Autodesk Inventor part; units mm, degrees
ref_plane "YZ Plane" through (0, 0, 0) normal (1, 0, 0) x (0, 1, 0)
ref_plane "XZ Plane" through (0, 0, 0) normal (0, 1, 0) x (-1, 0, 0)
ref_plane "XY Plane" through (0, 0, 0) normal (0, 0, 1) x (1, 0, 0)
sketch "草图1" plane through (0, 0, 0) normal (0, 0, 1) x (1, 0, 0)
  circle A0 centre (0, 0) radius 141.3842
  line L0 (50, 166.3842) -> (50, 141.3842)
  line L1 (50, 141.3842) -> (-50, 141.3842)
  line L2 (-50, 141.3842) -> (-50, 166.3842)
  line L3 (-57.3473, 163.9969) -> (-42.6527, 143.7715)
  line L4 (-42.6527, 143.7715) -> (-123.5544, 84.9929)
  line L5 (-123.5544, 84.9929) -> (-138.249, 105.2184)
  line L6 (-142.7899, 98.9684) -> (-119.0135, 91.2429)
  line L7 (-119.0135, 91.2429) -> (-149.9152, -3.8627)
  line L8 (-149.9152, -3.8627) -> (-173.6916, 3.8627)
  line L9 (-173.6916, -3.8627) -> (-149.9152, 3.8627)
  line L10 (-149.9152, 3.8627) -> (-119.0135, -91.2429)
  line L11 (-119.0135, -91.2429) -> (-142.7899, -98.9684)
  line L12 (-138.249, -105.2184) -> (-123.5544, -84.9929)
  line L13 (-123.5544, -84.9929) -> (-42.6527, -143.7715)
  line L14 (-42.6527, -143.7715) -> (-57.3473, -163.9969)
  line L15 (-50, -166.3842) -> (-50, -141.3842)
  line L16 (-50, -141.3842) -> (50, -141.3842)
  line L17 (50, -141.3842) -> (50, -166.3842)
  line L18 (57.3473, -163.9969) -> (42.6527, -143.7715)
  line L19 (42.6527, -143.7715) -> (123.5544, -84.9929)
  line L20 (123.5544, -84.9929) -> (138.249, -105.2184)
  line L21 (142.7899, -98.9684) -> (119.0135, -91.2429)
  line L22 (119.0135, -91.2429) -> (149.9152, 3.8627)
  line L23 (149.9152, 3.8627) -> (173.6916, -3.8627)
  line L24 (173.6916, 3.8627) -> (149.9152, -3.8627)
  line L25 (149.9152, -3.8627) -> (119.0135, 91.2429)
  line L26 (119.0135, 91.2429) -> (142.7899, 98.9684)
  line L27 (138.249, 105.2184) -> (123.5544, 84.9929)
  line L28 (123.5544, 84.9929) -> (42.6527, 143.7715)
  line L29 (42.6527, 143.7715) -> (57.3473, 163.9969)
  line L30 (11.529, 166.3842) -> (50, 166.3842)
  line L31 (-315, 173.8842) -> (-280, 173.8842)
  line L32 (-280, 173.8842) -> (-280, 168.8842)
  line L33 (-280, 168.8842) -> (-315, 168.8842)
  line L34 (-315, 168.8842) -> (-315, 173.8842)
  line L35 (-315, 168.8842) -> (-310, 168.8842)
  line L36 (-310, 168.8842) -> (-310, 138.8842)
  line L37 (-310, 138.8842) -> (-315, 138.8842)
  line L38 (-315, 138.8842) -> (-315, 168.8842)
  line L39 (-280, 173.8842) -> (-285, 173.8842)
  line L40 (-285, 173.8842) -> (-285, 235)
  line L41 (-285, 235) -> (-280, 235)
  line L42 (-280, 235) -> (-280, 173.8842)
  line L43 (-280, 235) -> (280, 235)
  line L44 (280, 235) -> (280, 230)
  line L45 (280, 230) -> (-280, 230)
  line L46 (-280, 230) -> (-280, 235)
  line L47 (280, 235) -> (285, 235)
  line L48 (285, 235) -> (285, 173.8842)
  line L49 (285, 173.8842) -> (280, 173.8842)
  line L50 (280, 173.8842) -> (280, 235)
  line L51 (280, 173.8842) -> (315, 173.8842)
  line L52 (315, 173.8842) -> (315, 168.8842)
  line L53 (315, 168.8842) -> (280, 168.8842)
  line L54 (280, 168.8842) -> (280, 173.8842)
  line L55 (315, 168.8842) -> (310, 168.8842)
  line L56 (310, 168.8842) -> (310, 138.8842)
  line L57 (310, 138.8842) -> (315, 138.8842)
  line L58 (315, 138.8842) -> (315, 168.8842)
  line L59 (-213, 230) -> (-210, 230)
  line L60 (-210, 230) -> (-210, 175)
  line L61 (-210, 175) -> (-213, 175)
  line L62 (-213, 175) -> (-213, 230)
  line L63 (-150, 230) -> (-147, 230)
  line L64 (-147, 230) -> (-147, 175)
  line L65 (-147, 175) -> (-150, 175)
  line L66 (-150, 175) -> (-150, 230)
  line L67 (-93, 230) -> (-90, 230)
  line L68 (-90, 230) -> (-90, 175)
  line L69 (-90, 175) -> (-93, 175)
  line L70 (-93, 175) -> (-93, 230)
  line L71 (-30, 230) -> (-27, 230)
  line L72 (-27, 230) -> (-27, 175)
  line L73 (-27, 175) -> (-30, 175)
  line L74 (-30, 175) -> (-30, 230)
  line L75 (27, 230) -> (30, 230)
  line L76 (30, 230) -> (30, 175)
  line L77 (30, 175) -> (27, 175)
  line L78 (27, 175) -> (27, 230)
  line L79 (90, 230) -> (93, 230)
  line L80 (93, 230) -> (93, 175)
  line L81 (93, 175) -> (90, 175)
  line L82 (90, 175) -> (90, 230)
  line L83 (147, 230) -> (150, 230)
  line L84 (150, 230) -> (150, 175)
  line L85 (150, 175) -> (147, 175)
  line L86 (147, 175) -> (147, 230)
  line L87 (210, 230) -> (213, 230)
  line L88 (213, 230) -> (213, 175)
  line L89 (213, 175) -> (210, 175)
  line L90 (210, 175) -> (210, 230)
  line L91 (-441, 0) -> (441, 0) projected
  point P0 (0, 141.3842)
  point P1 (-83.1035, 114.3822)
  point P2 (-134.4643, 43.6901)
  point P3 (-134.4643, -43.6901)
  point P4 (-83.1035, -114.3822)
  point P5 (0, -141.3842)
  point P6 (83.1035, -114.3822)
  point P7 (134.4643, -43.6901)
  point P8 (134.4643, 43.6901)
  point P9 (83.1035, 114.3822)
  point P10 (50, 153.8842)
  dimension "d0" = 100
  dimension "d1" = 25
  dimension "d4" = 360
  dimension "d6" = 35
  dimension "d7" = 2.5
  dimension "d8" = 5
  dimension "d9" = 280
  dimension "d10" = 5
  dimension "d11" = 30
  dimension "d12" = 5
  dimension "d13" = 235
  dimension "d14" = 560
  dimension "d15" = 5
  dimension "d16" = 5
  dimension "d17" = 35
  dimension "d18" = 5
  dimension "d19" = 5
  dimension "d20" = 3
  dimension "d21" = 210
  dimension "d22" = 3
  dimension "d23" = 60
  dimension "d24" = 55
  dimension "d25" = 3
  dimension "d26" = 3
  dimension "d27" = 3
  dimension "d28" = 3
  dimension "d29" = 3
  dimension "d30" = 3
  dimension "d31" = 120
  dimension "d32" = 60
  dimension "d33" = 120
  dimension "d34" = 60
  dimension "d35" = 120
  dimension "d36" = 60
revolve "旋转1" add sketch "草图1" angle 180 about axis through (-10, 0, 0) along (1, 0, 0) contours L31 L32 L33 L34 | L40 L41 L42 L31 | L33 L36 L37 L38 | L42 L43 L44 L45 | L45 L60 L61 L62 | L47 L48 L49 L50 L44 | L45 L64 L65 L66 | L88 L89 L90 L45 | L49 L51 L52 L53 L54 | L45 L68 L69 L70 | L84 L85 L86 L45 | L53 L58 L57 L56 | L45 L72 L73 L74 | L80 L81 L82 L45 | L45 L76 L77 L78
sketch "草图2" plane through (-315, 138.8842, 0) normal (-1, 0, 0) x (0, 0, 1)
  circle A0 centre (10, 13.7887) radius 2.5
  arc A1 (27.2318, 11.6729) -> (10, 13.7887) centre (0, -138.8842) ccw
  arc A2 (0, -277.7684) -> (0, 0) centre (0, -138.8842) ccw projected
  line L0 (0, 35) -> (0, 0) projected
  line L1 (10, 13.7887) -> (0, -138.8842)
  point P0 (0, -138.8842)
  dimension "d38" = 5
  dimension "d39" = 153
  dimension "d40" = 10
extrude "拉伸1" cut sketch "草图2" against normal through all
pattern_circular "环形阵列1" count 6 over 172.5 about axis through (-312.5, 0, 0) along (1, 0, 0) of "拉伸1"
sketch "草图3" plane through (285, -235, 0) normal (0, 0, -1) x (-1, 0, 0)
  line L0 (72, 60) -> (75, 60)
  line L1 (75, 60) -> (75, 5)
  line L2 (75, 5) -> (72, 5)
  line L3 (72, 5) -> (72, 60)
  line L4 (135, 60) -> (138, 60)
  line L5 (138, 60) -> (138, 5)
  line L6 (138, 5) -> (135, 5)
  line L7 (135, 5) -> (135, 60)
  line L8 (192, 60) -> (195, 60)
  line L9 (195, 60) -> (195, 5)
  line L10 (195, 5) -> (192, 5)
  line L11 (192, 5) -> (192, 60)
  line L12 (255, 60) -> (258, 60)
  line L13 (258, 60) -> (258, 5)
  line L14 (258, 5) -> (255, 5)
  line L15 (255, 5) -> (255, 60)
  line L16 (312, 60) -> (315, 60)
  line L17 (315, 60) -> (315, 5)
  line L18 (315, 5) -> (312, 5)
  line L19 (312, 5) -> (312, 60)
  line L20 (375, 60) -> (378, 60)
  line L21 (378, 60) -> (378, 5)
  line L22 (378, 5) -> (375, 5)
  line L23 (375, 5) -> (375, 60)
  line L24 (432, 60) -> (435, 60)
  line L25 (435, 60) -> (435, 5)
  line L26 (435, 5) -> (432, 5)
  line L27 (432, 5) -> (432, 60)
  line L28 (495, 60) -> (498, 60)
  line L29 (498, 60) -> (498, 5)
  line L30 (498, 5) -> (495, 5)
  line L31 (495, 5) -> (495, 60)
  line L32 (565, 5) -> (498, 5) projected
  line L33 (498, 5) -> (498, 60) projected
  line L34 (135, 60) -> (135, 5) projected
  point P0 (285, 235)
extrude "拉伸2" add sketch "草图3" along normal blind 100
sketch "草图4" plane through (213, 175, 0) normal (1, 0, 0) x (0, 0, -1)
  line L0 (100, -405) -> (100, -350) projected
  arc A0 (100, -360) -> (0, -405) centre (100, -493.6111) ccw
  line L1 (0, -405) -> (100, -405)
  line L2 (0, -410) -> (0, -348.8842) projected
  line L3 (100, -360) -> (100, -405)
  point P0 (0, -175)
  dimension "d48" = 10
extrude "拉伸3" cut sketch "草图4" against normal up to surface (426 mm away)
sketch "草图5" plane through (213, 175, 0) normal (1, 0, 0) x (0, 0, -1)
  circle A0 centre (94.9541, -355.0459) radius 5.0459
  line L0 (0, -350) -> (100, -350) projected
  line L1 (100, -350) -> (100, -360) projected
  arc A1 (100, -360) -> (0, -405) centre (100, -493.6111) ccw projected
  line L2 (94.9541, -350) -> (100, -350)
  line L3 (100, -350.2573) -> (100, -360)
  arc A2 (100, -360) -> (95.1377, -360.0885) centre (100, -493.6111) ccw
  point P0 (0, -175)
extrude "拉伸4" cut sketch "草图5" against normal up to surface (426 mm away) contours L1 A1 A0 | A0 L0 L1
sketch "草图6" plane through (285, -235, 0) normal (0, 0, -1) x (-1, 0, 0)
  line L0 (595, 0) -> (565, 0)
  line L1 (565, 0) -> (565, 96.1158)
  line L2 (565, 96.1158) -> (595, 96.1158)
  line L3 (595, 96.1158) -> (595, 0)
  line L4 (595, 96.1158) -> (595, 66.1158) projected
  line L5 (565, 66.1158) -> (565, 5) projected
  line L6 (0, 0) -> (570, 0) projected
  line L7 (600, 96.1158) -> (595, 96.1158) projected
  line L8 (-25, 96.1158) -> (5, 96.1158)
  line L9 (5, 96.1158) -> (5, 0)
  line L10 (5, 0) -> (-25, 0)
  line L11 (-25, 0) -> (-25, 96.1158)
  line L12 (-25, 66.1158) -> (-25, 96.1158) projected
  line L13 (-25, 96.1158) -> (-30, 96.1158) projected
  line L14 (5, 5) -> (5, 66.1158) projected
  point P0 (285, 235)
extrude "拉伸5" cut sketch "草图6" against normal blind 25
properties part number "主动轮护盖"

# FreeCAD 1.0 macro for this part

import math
import FreeCAD as App
import Part
import Sketcher
Q = App.Units.Quantity

doc = App.newDocument("Part")
params = doc.addObject("Spreadsheet::Sheet", "Params")
for row, (alias, value) in enumerate([
    ("sketch1_width", "30 mm"),
    ("sketch1_width2", "5 mm"),
    ("sketch1_width3", "3 mm"),
    ("sketch1_width4", "60 mm"),
    ("sketch1_height", "35 mm"),
    ("revolution_angle", "180 deg"),
    ("sketch2_diameter", "5 mm"),
    ("sketch3_width", "3 mm"),
    ("sketch3_height", "55 mm"),
    ("pad1_length", "100 mm"),
    ("sketch4_width", "45 mm"),
    ("sketch4_height", "100 mm"),
    ("pocket2_length", "426 mm"),
    ("pocket3_length", "426 mm"),
    ("sketch6_width", "30 mm"),
    ("pocket4_length", "25 mm"),
], start=1):
    params.set(f"A{row}", alias)
    params.set(f"B{row}", "=" + value)
    params.setAlias(f"B{row}", alias)

body = doc.addObject("PartDesign::Body", "Body")

# Sketch on XY plane
sketch1 = body.newObject("Sketcher::SketchObject", "Sketch")
sketch1.AttachmentSupport = (doc.getObject("XY_Plane"), [""])
sketch1.MapMode = "FlatFace"
sketch1.addGeometry(Part.LineSegment(App.Vector(-285, 173.8842, 0), App.Vector(-315, 173.8842, 0)), False)
sketch1.addGeometry(Part.LineSegment(App.Vector(-315, 173.8842, 0), App.Vector(-315, 138.8842, 0)), False)
sketch1.addGeometry(Part.LineSegment(App.Vector(-315, 138.8842, 0), App.Vector(-310, 138.8842, 0)), False)
sketch1.addGeometry(Part.LineSegment(App.Vector(-310, 138.8842, 0), App.Vector(-310, 168.8842, 0)), False)
sketch1.addGeometry(Part.LineSegment(App.Vector(-310, 168.8842, 0), App.Vector(-280, 168.8842, 0)), False)
sketch1.addGeometry(Part.LineSegment(App.Vector(-280, 168.8842, 0), App.Vector(-280, 230, 0)), False)
sketch1.addGeometry(Part.LineSegment(App.Vector(-280, 230, 0), App.Vector(-213, 230, 0)), False)
sketch1.addGeometry(Part.LineSegment(App.Vector(-213, 230, 0), App.Vector(-213, 175, 0)), False)
sketch1.addGeometry(Part.LineSegment(App.Vector(-213, 175, 0), App.Vector(-210, 175, 0)), False)
sketch1.addGeometry(Part.LineSegment(App.Vector(-210, 175, 0), App.Vector(-210, 230, 0)), False)
sketch1.addGeometry(Part.LineSegment(App.Vector(-210, 230, 0), App.Vector(-150, 230, 0)), False)
sketch1.addGeometry(Part.LineSegment(App.Vector(-150, 230, 0), App.Vector(-150, 175, 0)), False)
sketch1.addGeometry(Part.LineSegment(App.Vector(-150, 175, 0), App.Vector(-147, 175, 0)), False)
sketch1.addGeometry(Part.LineSegment(App.Vector(-147, 175, 0), App.Vector(-147, 230, 0)), False)
sketch1.addGeometry(Part.LineSegment(App.Vector(-147, 230, 0), App.Vector(-93, 230, 0)), False)
sketch1.addGeometry(Part.LineSegment(App.Vector(-93, 230, 0), App.Vector(-93, 175, 0)), False)
sketch1.addGeometry(Part.LineSegment(App.Vector(-93, 175, 0), App.Vector(-90, 175, 0)), False)
sketch1.addGeometry(Part.LineSegment(App.Vector(-90, 175, 0), App.Vector(-90, 230, 0)), False)
sketch1.addGeometry(Part.LineSegment(App.Vector(-90, 230, 0), App.Vector(-30, 230, 0)), False)
sketch1.addGeometry(Part.LineSegment(App.Vector(-30, 230, 0), App.Vector(-30, 175, 0)), False)
sketch1.addGeometry(Part.LineSegment(App.Vector(-30, 175, 0), App.Vector(-27, 175, 0)), False)
sketch1.addGeometry(Part.LineSegment(App.Vector(-27, 175, 0), App.Vector(-27, 230, 0)), False)
sketch1.addGeometry(Part.LineSegment(App.Vector(-27, 230, 0), App.Vector(27, 230, 0)), False)
sketch1.addGeometry(Part.LineSegment(App.Vector(27, 230, 0), App.Vector(27, 175, 0)), False)
sketch1.addGeometry(Part.LineSegment(App.Vector(27, 175, 0), App.Vector(30, 175, 0)), False)
sketch1.addGeometry(Part.LineSegment(App.Vector(30, 175, 0), App.Vector(30, 230, 0)), False)
sketch1.addGeometry(Part.LineSegment(App.Vector(30, 230, 0), App.Vector(90, 230, 0)), False)
sketch1.addGeometry(Part.LineSegment(App.Vector(90, 230, 0), App.Vector(90, 175, 0)), False)
sketch1.addGeometry(Part.LineSegment(App.Vector(90, 175, 0), App.Vector(93, 175, 0)), False)
sketch1.addGeometry(Part.LineSegment(App.Vector(93, 175, 0), App.Vector(93, 230, 0)), False)
sketch1.addGeometry(Part.LineSegment(App.Vector(93, 230, 0), App.Vector(147, 230, 0)), False)
sketch1.addGeometry(Part.LineSegment(App.Vector(147, 230, 0), App.Vector(147, 175, 0)), False)
sketch1.addGeometry(Part.LineSegment(App.Vector(147, 175, 0), App.Vector(150, 175, 0)), False)
sketch1.addGeometry(Part.LineSegment(App.Vector(150, 175, 0), App.Vector(150, 230, 0)), False)
sketch1.addGeometry(Part.LineSegment(App.Vector(150, 230, 0), App.Vector(210, 230, 0)), False)
sketch1.addGeometry(Part.LineSegment(App.Vector(210, 230, 0), App.Vector(210, 175, 0)), False)
sketch1.addGeometry(Part.LineSegment(App.Vector(210, 175, 0), App.Vector(213, 175, 0)), False)
sketch1.addGeometry(Part.LineSegment(App.Vector(213, 175, 0), App.Vector(213, 230, 0)), False)
sketch1.addGeometry(Part.LineSegment(App.Vector(213, 230, 0), App.Vector(280, 230, 0)), False)
sketch1.addGeometry(Part.LineSegment(App.Vector(280, 230, 0), App.Vector(280, 168.8842, 0)), False)
sketch1.addGeometry(Part.LineSegment(App.Vector(280, 168.8842, 0), App.Vector(310, 168.8842, 0)), False)
sketch1.addGeometry(Part.LineSegment(App.Vector(310, 168.8842, 0), App.Vector(310, 138.8842, 0)), False)
sketch1.addGeometry(Part.LineSegment(App.Vector(310, 138.8842, 0), App.Vector(315, 138.8842, 0)), False)
sketch1.addGeometry(Part.LineSegment(App.Vector(315, 138.8842, 0), App.Vector(315, 173.8842, 0)), False)
sketch1.addGeometry(Part.LineSegment(App.Vector(315, 173.8842, 0), App.Vector(285, 173.8842, 0)), False)
sketch1.addGeometry(Part.LineSegment(App.Vector(285, 173.8842, 0), App.Vector(285, 235, 0)), False)
sketch1.addGeometry(Part.LineSegment(App.Vector(285, 235, 0), App.Vector(-285, 235, 0)), False)
sketch1.addGeometry(Part.LineSegment(App.Vector(-285, 235, 0), App.Vector(-285, 173.8842, 0)), False)
sketch1.addConstraint(Sketcher.Constraint("Coincident", 0, 2, 1, 1))
sketch1.addConstraint(Sketcher.Constraint("Coincident", 1, 2, 2, 1))
sketch1.addConstraint(Sketcher.Constraint("Coincident", 2, 2, 3, 1))
sketch1.addConstraint(Sketcher.Constraint("Coincident", 3, 2, 4, 1))
sketch1.addConstraint(Sketcher.Constraint("Coincident", 4, 2, 5, 1))
sketch1.addConstraint(Sketcher.Constraint("Coincident", 5, 2, 6, 1))
sketch1.addConstraint(Sketcher.Constraint("Coincident", 6, 2, 7, 1))
sketch1.addConstraint(Sketcher.Constraint("Coincident", 7, 2, 8, 1))
sketch1.addConstraint(Sketcher.Constraint("Coincident", 8, 2, 9, 1))
sketch1.addConstraint(Sketcher.Constraint("Coincident", 9, 2, 10, 1))
sketch1.addConstraint(Sketcher.Constraint("Coincident", 10, 2, 11, 1))
sketch1.addConstraint(Sketcher.Constraint("Coincident", 11, 2, 12, 1))
sketch1.addConstraint(Sketcher.Constraint("Coincident", 12, 2, 13, 1))
sketch1.addConstraint(Sketcher.Constraint("Coincident", 13, 2, 14, 1))
sketch1.addConstraint(Sketcher.Constraint("Coincident", 14, 2, 15, 1))
sketch1.addConstraint(Sketcher.Constraint("Coincident", 15, 2, 16, 1))
sketch1.addConstraint(Sketcher.Constraint("Coincident", 16, 2, 17, 1))
sketch1.addConstraint(Sketcher.Constraint("Coincident", 17, 2, 18, 1))
sketch1.addConstraint(Sketcher.Constraint("Coincident", 18, 2, 19, 1))
sketch1.addConstraint(Sketcher.Constraint("Coincident", 19, 2, 20, 1))
sketch1.addConstraint(Sketcher.Constraint("Coincident", 20, 2, 21, 1))
sketch1.addConstraint(Sketcher.Constraint("Coincident", 21, 2, 22, 1))
sketch1.addConstraint(Sketcher.Constraint("Coincident", 22, 2, 23, 1))
sketch1.addConstraint(Sketcher.Constraint("Coincident", 23, 2, 24, 1))
sketch1.addConstraint(Sketcher.Constraint("Coincident", 24, 2, 25, 1))
sketch1.addConstraint(Sketcher.Constraint("Coincident", 25, 2, 26, 1))
sketch1.addConstraint(Sketcher.Constraint("Coincident", 26, 2, 27, 1))
sketch1.addConstraint(Sketcher.Constraint("Coincident", 27, 2, 28, 1))
sketch1.addConstraint(Sketcher.Constraint("Coincident", 28, 2, 29, 1))
sketch1.addConstraint(Sketcher.Constraint("Coincident", 29, 2, 30, 1))
sketch1.addConstraint(Sketcher.Constraint("Coincident", 30, 2, 31, 1))
sketch1.addConstraint(Sketcher.Constraint("Coincident", 31, 2, 32, 1))
sketch1.addConstraint(Sketcher.Constraint("Coincident", 32, 2, 33, 1))
sketch1.addConstraint(Sketcher.Constraint("Coincident", 33, 2, 34, 1))
sketch1.addConstraint(Sketcher.Constraint("Coincident", 34, 2, 35, 1))
sketch1.addConstraint(Sketcher.Constraint("Coincident", 35, 2, 36, 1))
sketch1.addConstraint(Sketcher.Constraint("Coincident", 36, 2, 37, 1))
sketch1.addConstraint(Sketcher.Constraint("Coincident", 37, 2, 38, 1))
sketch1.addConstraint(Sketcher.Constraint("Coincident", 38, 2, 39, 1))
sketch1.addConstraint(Sketcher.Constraint("Coincident", 39, 2, 40, 1))
sketch1.addConstraint(Sketcher.Constraint("Coincident", 40, 2, 41, 1))
sketch1.addConstraint(Sketcher.Constraint("Coincident", 41, 2, 42, 1))
sketch1.addConstraint(Sketcher.Constraint("Coincident", 42, 2, 43, 1))
sketch1.addConstraint(Sketcher.Constraint("Coincident", 43, 2, 44, 1))
sketch1.addConstraint(Sketcher.Constraint("Coincident", 44, 2, 45, 1))
sketch1.addConstraint(Sketcher.Constraint("Coincident", 45, 2, 46, 1))
sketch1.addConstraint(Sketcher.Constraint("Coincident", 46, 2, 47, 1))
sketch1.addConstraint(Sketcher.Constraint("Coincident", 47, 2, 0, 1))
sketch1.addConstraint(Sketcher.Constraint("Horizontal", 0))
sketch1.addConstraint(Sketcher.Constraint("Vertical", 1))
sketch1.addConstraint(Sketcher.Constraint("Horizontal", 2))
sketch1.addConstraint(Sketcher.Constraint("Vertical", 3))
sketch1.addConstraint(Sketcher.Constraint("Horizontal", 4))
sketch1.addConstraint(Sketcher.Constraint("Vertical", 5))
sketch1.addConstraint(Sketcher.Constraint("Horizontal", 6))
sketch1.addConstraint(Sketcher.Constraint("Vertical", 7))
sketch1.addConstraint(Sketcher.Constraint("Horizontal", 8))
sketch1.addConstraint(Sketcher.Constraint("Vertical", 9))
sketch1.addConstraint(Sketcher.Constraint("Horizontal", 10))
sketch1.addConstraint(Sketcher.Constraint("Vertical", 11))
sketch1.addConstraint(Sketcher.Constraint("Horizontal", 12))
sketch1.addConstraint(Sketcher.Constraint("Vertical", 13))
sketch1.addConstraint(Sketcher.Constraint("Horizontal", 14))
sketch1.addConstraint(Sketcher.Constraint("Vertical", 15))
sketch1.addConstraint(Sketcher.Constraint("Horizontal", 16))
sketch1.addConstraint(Sketcher.Constraint("Vertical", 17))
sketch1.addConstraint(Sketcher.Constraint("Horizontal", 18))
sketch1.addConstraint(Sketcher.Constraint("Vertical", 19))
sketch1.addConstraint(Sketcher.Constraint("Horizontal", 20))
sketch1.addConstraint(Sketcher.Constraint("Vertical", 21))
sketch1.addConstraint(Sketcher.Constraint("Horizontal", 22))
sketch1.addConstraint(Sketcher.Constraint("Vertical", 23))
sketch1.addConstraint(Sketcher.Constraint("Horizontal", 24))
sketch1.addConstraint(Sketcher.Constraint("Vertical", 25))
sketch1.addConstraint(Sketcher.Constraint("Horizontal", 26))
sketch1.addConstraint(Sketcher.Constraint("Vertical", 27))
sketch1.addConstraint(Sketcher.Constraint("Horizontal", 28))
sketch1.addConstraint(Sketcher.Constraint("Vertical", 29))
sketch1.addConstraint(Sketcher.Constraint("Horizontal", 30))
sketch1.addConstraint(Sketcher.Constraint("Vertical", 31))
sketch1.addConstraint(Sketcher.Constraint("Horizontal", 32))
sketch1.addConstraint(Sketcher.Constraint("Vertical", 33))
sketch1.addConstraint(Sketcher.Constraint("Horizontal", 34))
sketch1.addConstraint(Sketcher.Constraint("Vertical", 35))
sketch1.addConstraint(Sketcher.Constraint("Horizontal", 36))
sketch1.addConstraint(Sketcher.Constraint("Vertical", 37))
sketch1.addConstraint(Sketcher.Constraint("Horizontal", 38))
sketch1.addConstraint(Sketcher.Constraint("Vertical", 39))
sketch1.addConstraint(Sketcher.Constraint("Horizontal", 40))
sketch1.addConstraint(Sketcher.Constraint("Vertical", 41))
sketch1.addConstraint(Sketcher.Constraint("Horizontal", 42))
sketch1.addConstraint(Sketcher.Constraint("Vertical", 43))
sketch1.addConstraint(Sketcher.Constraint("Horizontal", 44))
sketch1.addConstraint(Sketcher.Constraint("Vertical", 45))
sketch1.addConstraint(Sketcher.Constraint("Horizontal", 46))
sketch1.addConstraint(Sketcher.Constraint("Vertical", 47))
sketch1.addConstraint(Sketcher.Constraint("Symmetric", 20, 2, 23, 2, -2))
sketch1.addConstraint(Sketcher.Constraint("Symmetric", 18, 2, 25, 2, -2))
sketch1.addConstraint(Sketcher.Constraint("Symmetric", 16, 2, 27, 2, -2))
sketch1.addConstraint(Sketcher.Constraint("Symmetric", 14, 2, 29, 2, -2))
sketch1.addConstraint(Sketcher.Constraint("Symmetric", 12, 2, 31, 2, -2))
sketch1.addConstraint(Sketcher.Constraint("Symmetric", 10, 2, 33, 2, -2))
sketch1.addConstraint(Sketcher.Constraint("Symmetric", 8, 2, 35, 2, -2))
sketch1.addConstraint(Sketcher.Constraint("Symmetric", 6, 2, 37, 2, -2))
sketch1.addConstraint(Sketcher.Constraint("Symmetric", 4, 2, 39, 2, -2))
sketch1.addConstraint(Sketcher.Constraint("Symmetric", 2, 2, 41, 2, -2))
sketch1.addConstraint(Sketcher.Constraint("Symmetric", 0, 2, 43, 2, -2))
sketch1.addConstraint(Sketcher.Constraint("Horizontal", 6, 2, 9, 2))
sketch1.addConstraint(Sketcher.Constraint("Horizontal", 8, 2, 11, 2))
sketch1.addConstraint(Sketcher.Constraint("Horizontal", 10, 2, 13, 2))
sketch1.addConstraint(Sketcher.Constraint("Horizontal", 12, 2, 15, 2))
sketch1.addConstraint(Sketcher.Constraint("Horizontal", 14, 2, 17, 2))
sketch1.addConstraint(Sketcher.Constraint("Horizontal", 16, 2, 19, 2))
sketch1.addConstraint(Sketcher.Constraint("Horizontal", 18, 2, 21, 2))
sketch1.addConstraint(Sketcher.Constraint("Equal", 0, 4))
sketch1.addConstraint(Sketcher.Constraint("Equal", 8, 12))
sketch1.addConstraint(Sketcher.Constraint("Equal", 12, 16))
sketch1.addConstraint(Sketcher.Constraint("Equal", 10, 18))
sketch1.addConstraint(Sketcher.Constraint("Equal", 16, 20))
sketch1.addConstraint(Sketcher.Constraint("Equal", 14, 22))
sketch1.addConstraint(Sketcher.Constraint("Equal", 40, 44))
sketch1.addConstraint(Sketcher.Constraint("Equal", 44, 3))
sketch1.addConstraint(Sketcher.Constraint("Equal", 39, 45))
sketch1.addConstraint(Sketcher.Constraint("DistanceX", 0, 2, 0, 1, Q("30 mm")))
sketch1.addConstraint(Sketcher.Constraint("DistanceX", 2, 1, 2, 2, Q("5 mm")))
sketch1.addConstraint(Sketcher.Constraint("DistanceX", 8, 1, 8, 2, Q("3 mm")))
sketch1.addConstraint(Sketcher.Constraint("DistanceX", 10, 1, 10, 2, Q("60 mm")))
sketch1.addConstraint(Sketcher.Constraint("DistanceY", 1, 2, 1, 1, Q("35 mm")))
sketch1.addConstraint(Sketcher.Constraint("DistanceY", 7, 2, 7, 1, Q("55 mm")))
sketch1.addConstraint(Sketcher.Constraint("DistanceX", 4, 2, -1, 1, Q("280 mm")))
sketch1.addConstraint(Sketcher.Constraint("DistanceX", 8, 2, -1, 1, Q("210 mm")))
sketch1.addConstraint(Sketcher.Constraint("DistanceY", -1, 1, 45, 2, Q("235 mm")))
sketch1.addConstraint(Sketcher.Constraint("DistanceY", 5, 1, 5, 2, Q("61.1158 mm")))
sketch1.setExpression("Constraints[123]", "Params.sketch1_width")
sketch1.setExpression("Constraints[124]", "Params.sketch1_width2")
sketch1.setExpression("Constraints[125]", "Params.sketch1_width3")
sketch1.setExpression("Constraints[126]", "Params.sketch1_width4")
sketch1.setExpression("Constraints[127]", "Params.sketch1_height")
revolution = body.newObject("PartDesign::Revolution", "Revolution")
revolution.Profile = sketch1
revolution.ReferenceAxis = (sketch1, ["H_Axis"])
revolution.setExpression("Angle", "Params.revolution_angle")

# Sketch on YZ plane
sketch2 = body.newObject("Sketcher::SketchObject", "Sketch001")
sketch2.AttachmentSupport = (doc.getObject("YZ_Plane"), [""])
sketch2.MapMode = "FlatFace"
sketch2.AttachmentOffset = App.Placement(App.Vector(0, 0, -315), App.Rotation())
sketch2.addGeometry(Part.Circle(App.Vector(152.6729, 10, 0), App.Vector(0, 0, 1), 2.5), False)
sketch2.addConstraint(Sketcher.Constraint("Diameter", 0, Q("5 mm")))
sketch2.addConstraint(Sketcher.Constraint("DistanceY", -1, 1, 0, 3, Q("10 mm")))
sketch2.addConstraint(Sketcher.Constraint("DistanceX", -1, 1, 0, 3, Q("152.673 mm")))
sketch2.setExpression("Constraints[0]", "Params.sketch2_diameter")
pocket1 = body.newObject("PartDesign::Pocket", "Pocket")
pocket1.Profile = sketch2
pocket1.Type = "ThroughAll"
pocket1.Reversed = True
doc.recompute()

polarpattern = body.newObject("PartDesign::PolarPattern", "PolarPattern")
polarpattern.Originals = [pocket1]
polarpattern.Axis = (doc.getObject("X_Axis"), [""])
polarpattern.Angle = 172.5
polarpattern.Occurrences = 6
body.Tip = polarpattern

# Sketch on XY plane
sketch3 = body.newObject("Sketcher::SketchObject", "Sketch002")
sketch3.AttachmentSupport = (doc.getObject("XY_Plane"), [""])
sketch3.MapMode = "FlatFace"
sketch3.addGeometry(Part.LineSegment(App.Vector(210, -175, 0), App.Vector(213, -175, 0)), False)
sketch3.addGeometry(Part.LineSegment(App.Vector(213, -175, 0), App.Vector(213, -230, 0)), False)
sketch3.addGeometry(Part.LineSegment(App.Vector(213, -230, 0), App.Vector(210, -230, 0)), False)
sketch3.addGeometry(Part.LineSegment(App.Vector(210, -230, 0), App.Vector(210, -175, 0)), False)
sketch3.addGeometry(Part.LineSegment(App.Vector(147, -175, 0), App.Vector(150, -175, 0)), False)
sketch3.addGeometry(Part.LineSegment(App.Vector(150, -175, 0), App.Vector(150, -230, 0)), False)
sketch3.addGeometry(Part.LineSegment(App.Vector(150, -230, 0), App.Vector(147, -230, 0)), False)
sketch3.addGeometry(Part.LineSegment(App.Vector(147, -230, 0), App.Vector(147, -175, 0)), False)
sketch3.addGeometry(Part.LineSegment(App.Vector(90, -175, 0), App.Vector(93, -175, 0)), False)
sketch3.addGeometry(Part.LineSegment(App.Vector(93, -175, 0), App.Vector(93, -230, 0)), False)
sketch3.addGeometry(Part.LineSegment(App.Vector(93, -230, 0), App.Vector(90, -230, 0)), False)
sketch3.addGeometry(Part.LineSegment(App.Vector(90, -230, 0), App.Vector(90, -175, 0)), False)
sketch3.addGeometry(Part.LineSegment(App.Vector(27, -175, 0), App.Vector(30, -175, 0)), False)
sketch3.addGeometry(Part.LineSegment(App.Vector(30, -175, 0), App.Vector(30, -230, 0)), False)
sketch3.addGeometry(Part.LineSegment(App.Vector(30, -230, 0), App.Vector(27, -230, 0)), False)
sketch3.addGeometry(Part.LineSegment(App.Vector(27, -230, 0), App.Vector(27, -175, 0)), False)
sketch3.addGeometry(Part.LineSegment(App.Vector(-30, -175, 0), App.Vector(-27, -175, 0)), False)
sketch3.addGeometry(Part.LineSegment(App.Vector(-27, -175, 0), App.Vector(-27, -230, 0)), False)
sketch3.addGeometry(Part.LineSegment(App.Vector(-27, -230, 0), App.Vector(-30, -230, 0)), False)
sketch3.addGeometry(Part.LineSegment(App.Vector(-30, -230, 0), App.Vector(-30, -175, 0)), False)
sketch3.addGeometry(Part.LineSegment(App.Vector(-93, -175, 0), App.Vector(-90, -175, 0)), False)
sketch3.addGeometry(Part.LineSegment(App.Vector(-90, -175, 0), App.Vector(-90, -230, 0)), False)
sketch3.addGeometry(Part.LineSegment(App.Vector(-90, -230, 0), App.Vector(-93, -230, 0)), False)
sketch3.addGeometry(Part.LineSegment(App.Vector(-93, -230, 0), App.Vector(-93, -175, 0)), False)
sketch3.addGeometry(Part.LineSegment(App.Vector(-150, -175, 0), App.Vector(-147, -175, 0)), False)
sketch3.addGeometry(Part.LineSegment(App.Vector(-147, -175, 0), App.Vector(-147, -230, 0)), False)
sketch3.addGeometry(Part.LineSegment(App.Vector(-147, -230, 0), App.Vector(-150, -230, 0)), False)
sketch3.addGeometry(Part.LineSegment(App.Vector(-150, -230, 0), App.Vector(-150, -175, 0)), False)
sketch3.addGeometry(Part.LineSegment(App.Vector(-213, -175, 0), App.Vector(-210, -175, 0)), False)
sketch3.addGeometry(Part.LineSegment(App.Vector(-210, -175, 0), App.Vector(-210, -230, 0)), False)
sketch3.addGeometry(Part.LineSegment(App.Vector(-210, -230, 0), App.Vector(-213, -230, 0)), False)
sketch3.addGeometry(Part.LineSegment(App.Vector(-213, -230, 0), App.Vector(-213, -175, 0)), False)
sketch3.addConstraint(Sketcher.Constraint("Coincident", 0, 2, 1, 1))
sketch3.addConstraint(Sketcher.Constraint("Coincident", 1, 2, 2, 1))
sketch3.addConstraint(Sketcher.Constraint("Coincident", 2, 2, 3, 1))
sketch3.addConstraint(Sketcher.Constraint("Coincident", 3, 2, 0, 1))
sketch3.addConstraint(Sketcher.Constraint("Coincident", 4, 2, 5, 1))
sketch3.addConstraint(Sketcher.Constraint("Coincident", 5, 2, 6, 1))
sketch3.addConstraint(Sketcher.Constraint("Coincident", 6, 2, 7, 1))
sketch3.addConstraint(Sketcher.Constraint("Coincident", 7, 2, 4, 1))
sketch3.addConstraint(Sketcher.Constraint("Coincident", 8, 2, 9, 1))
sketch3.addConstraint(Sketcher.Constraint("Coincident", 9, 2, 10, 1))
sketch3.addConstraint(Sketcher.Constraint("Coincident", 10, 2, 11, 1))
sketch3.addConstraint(Sketcher.Constraint("Coincident", 11, 2, 8, 1))
sketch3.addConstraint(Sketcher.Constraint("Coincident", 12, 2, 13, 1))
sketch3.addConstraint(Sketcher.Constraint("Coincident", 13, 2, 14, 1))
sketch3.addConstraint(Sketcher.Constraint("Coincident", 14, 2, 15, 1))
sketch3.addConstraint(Sketcher.Constraint("Coincident", 15, 2, 12, 1))
sketch3.addConstraint(Sketcher.Constraint("Coincident", 16, 2, 17, 1))
sketch3.addConstraint(Sketcher.Constraint("Coincident", 17, 2, 18, 1))
sketch3.addConstraint(Sketcher.Constraint("Coincident", 18, 2, 19, 1))
sketch3.addConstraint(Sketcher.Constraint("Coincident", 19, 2, 16, 1))
sketch3.addConstraint(Sketcher.Constraint("Coincident", 20, 2, 21, 1))
sketch3.addConstraint(Sketcher.Constraint("Coincident", 21, 2, 22, 1))
sketch3.addConstraint(Sketcher.Constraint("Coincident", 22, 2, 23, 1))
sketch3.addConstraint(Sketcher.Constraint("Coincident", 23, 2, 20, 1))
sketch3.addConstraint(Sketcher.Constraint("Coincident", 24, 2, 25, 1))
sketch3.addConstraint(Sketcher.Constraint("Coincident", 25, 2, 26, 1))
sketch3.addConstraint(Sketcher.Constraint("Coincident", 26, 2, 27, 1))
sketch3.addConstraint(Sketcher.Constraint("Coincident", 27, 2, 24, 1))
sketch3.addConstraint(Sketcher.Constraint("Coincident", 28, 2, 29, 1))
sketch3.addConstraint(Sketcher.Constraint("Coincident", 29, 2, 30, 1))
sketch3.addConstraint(Sketcher.Constraint("Coincident", 30, 2, 31, 1))
sketch3.addConstraint(Sketcher.Constraint("Coincident", 31, 2, 28, 1))
sketch3.addConstraint(Sketcher.Constraint("Horizontal", 0))
sketch3.addConstraint(Sketcher.Constraint("Vertical", 1))
sketch3.addConstraint(Sketcher.Constraint("Horizontal", 2))
sketch3.addConstraint(Sketcher.Constraint("Vertical", 3))
sketch3.addConstraint(Sketcher.Constraint("Horizontal", 4))
sketch3.addConstraint(Sketcher.Constraint("Vertical", 5))
sketch3.addConstraint(Sketcher.Constraint("Horizontal", 6))
sketch3.addConstraint(Sketcher.Constraint("Vertical", 7))
sketch3.addConstraint(Sketcher.Constraint("Horizontal", 8))
sketch3.addConstraint(Sketcher.Constraint("Vertical", 9))
sketch3.addConstraint(Sketcher.Constraint("Horizontal", 10))
sketch3.addConstraint(Sketcher.Constraint("Vertical", 11))
sketch3.addConstraint(Sketcher.Constraint("Horizontal", 12))
sketch3.addConstraint(Sketcher.Constraint("Vertical", 13))
sketch3.addConstraint(Sketcher.Constraint("Horizontal", 14))
sketch3.addConstraint(Sketcher.Constraint("Vertical", 15))
sketch3.addConstraint(Sketcher.Constraint("Horizontal", 16))
sketch3.addConstraint(Sketcher.Constraint("Vertical", 17))
sketch3.addConstraint(Sketcher.Constraint("Horizontal", 18))
sketch3.addConstraint(Sketcher.Constraint("Vertical", 19))
sketch3.addConstraint(Sketcher.Constraint("Horizontal", 20))
sketch3.addConstraint(Sketcher.Constraint("Vertical", 21))
sketch3.addConstraint(Sketcher.Constraint("Horizontal", 22))
sketch3.addConstraint(Sketcher.Constraint("Vertical", 23))
sketch3.addConstraint(Sketcher.Constraint("Horizontal", 24))
sketch3.addConstraint(Sketcher.Constraint("Vertical", 25))
sketch3.addConstraint(Sketcher.Constraint("Horizontal", 26))
sketch3.addConstraint(Sketcher.Constraint("Vertical", 27))
sketch3.addConstraint(Sketcher.Constraint("Horizontal", 28))
sketch3.addConstraint(Sketcher.Constraint("Vertical", 29))
sketch3.addConstraint(Sketcher.Constraint("Horizontal", 30))
sketch3.addConstraint(Sketcher.Constraint("Vertical", 31))
sketch3.addConstraint(Sketcher.Constraint("Symmetric", 15, 2, 16, 2, -2))
sketch3.addConstraint(Sketcher.Constraint("Symmetric", 13, 2, 18, 2, -2))
sketch3.addConstraint(Sketcher.Constraint("Symmetric", 11, 2, 20, 2, -2))
sketch3.addConstraint(Sketcher.Constraint("Symmetric", 9, 2, 22, 2, -2))
sketch3.addConstraint(Sketcher.Constraint("Symmetric", 7, 2, 24, 2, -2))
sketch3.addConstraint(Sketcher.Constraint("Symmetric", 5, 2, 26, 2, -2))
sketch3.addConstraint(Sketcher.Constraint("Symmetric", 3, 2, 28, 2, -2))
sketch3.addConstraint(Sketcher.Constraint("Symmetric", 1, 2, 30, 2, -2))
sketch3.addConstraint(Sketcher.Constraint("Horizontal", 3, 2, 4, 2))
sketch3.addConstraint(Sketcher.Constraint("Horizontal", 2, 2, 5, 2))
sketch3.addConstraint(Sketcher.Constraint("Horizontal", 7, 2, 8, 2))
sketch3.addConstraint(Sketcher.Constraint("Horizontal", 6, 2, 9, 2))
sketch3.addConstraint(Sketcher.Constraint("Horizontal", 11, 2, 12, 2))
sketch3.addConstraint(Sketcher.Constraint("Horizontal", 10, 2, 13, 2))
sketch3.addConstraint(Sketcher.Constraint("Equal", 2, 4))
sketch3.addConstraint(Sketcher.Constraint("Equal", 6, 8))
sketch3.addConstraint(Sketcher.Constraint("Equal", 10, 12))
sketch3.addConstraint(Sketcher.Constraint("DistanceX", 0, 1, 0, 2, Q("3 mm")))
sketch3.addConstraint(Sketcher.Constraint("DistanceY", 1, 2, 1, 1, Q("55 mm")))
sketch3.addConstraint(Sketcher.Constraint("DistanceX", -1, 1, 0, 2, Q("213 mm")))
sketch3.addConstraint(Sketcher.Constraint("DistanceY", 0, 2, -1, 1, Q("175 mm")))
sketch3.addConstraint(Sketcher.Constraint("DistanceX", -1, 1, 4, 2, Q("150 mm")))
sketch3.addConstraint(Sketcher.Constraint("DistanceX", -1, 1, 8, 2, Q("93 mm")))
sketch3.addConstraint(Sketcher.Constraint("DistanceX", -1, 1, 12, 2, Q("30 mm")))
sketch3.setExpression("Constraints[81]", "Params.sketch3_width")
sketch3.setExpression("Constraints[82]", "Params.sketch3_height")
pad1 = body.newObject("PartDesign::Pad", "Pad")
pad1.Profile = sketch3
pad1.setExpression("Length", "Params.pad1_length")
pad1.Reversed = True

# Sketch on YZ plane
sketch4 = body.newObject("Sketcher::SketchObject", "Sketch003")
sketch4.AttachmentSupport = (doc.getObject("YZ_Plane"), [""])
sketch4.MapMode = "FlatFace"
sketch4.AttachmentOffset = App.Placement(App.Vector(0, 0, 213), App.Rotation())
sketch4.addGeometry(Part.LineSegment(App.Vector(-230, 0, 0), App.Vector(-230, -100, 0)), False)
sketch4.addGeometry(Part.LineSegment(App.Vector(-230, -100, 0), App.Vector(-185, -100, 0)), False)
sketch4.addGeometry(Part.ArcOfCircle(Part.Circle(App.Vector(-318.6111, -100, 0), App.Vector(0, 0, 1), 133.6111), math.radians(0), math.radians(48.455494)), False)
sketch4.addConstraint(Sketcher.Constraint("Coincident", 0, 2, 1, 1))
sketch4.addConstraint(Sketcher.Constraint("Coincident", 1, 2, 2, 1))
sketch4.addConstraint(Sketcher.Constraint("Coincident", 2, 2, 0, 1))
sketch4.addConstraint(Sketcher.Constraint("Vertical", 0))
sketch4.addConstraint(Sketcher.Constraint("Horizontal", 1))
sketch4.addConstraint(Sketcher.Constraint("PointOnObject", 2, 2, -1))
sketch4.addConstraint(Sketcher.Constraint("Horizontal", 2, 3, 0, 2))
sketch4.addConstraint(Sketcher.Constraint("DistanceX", 1, 1, 1, 2, Q("45 mm")))
sketch4.addConstraint(Sketcher.Constraint("DistanceY", 0, 2, 0, 1, Q("100 mm")))
sketch4.addConstraint(Sketcher.Constraint("DistanceX", 0, 2, -1, 1, Q("230 mm")))
sketch4.setExpression("Constraints[7]", "Params.sketch4_width")
sketch4.setExpression("Constraints[8]", "Params.sketch4_height")
pocket2 = body.newObject("PartDesign::Pocket", "Pocket001")
pocket2.Profile = sketch4
pocket2.setExpression("Length", "Params.pocket2_length")

# Sketch on YZ plane
sketch5 = body.newObject("Sketcher::SketchObject", "Sketch004")
sketch5.AttachmentSupport = (doc.getObject("YZ_Plane"), [""])
sketch5.MapMode = "FlatFace"
sketch5.AttachmentOffset = App.Placement(App.Vector(0, 0, 213), App.Rotation())
sketch5.addGeometry(Part.LineSegment(App.Vector(-185, -100, 0), App.Vector(-180.0459, -100, 0)), False)
sketch5.addGeometry(Part.ArcOfCircle(Part.Circle(App.Vector(-180.0459, -94.9541, 0), App.Vector(0, 0, 1), 5.0459), math.radians(-177.914794), math.radians(-90)), False)
sketch5.addGeometry(Part.ArcOfCircle(Part.Circle(App.Vector(-318.6111, -100, 0), App.Vector(0, 0, 1), 133.6111), math.radians(0), math.radians(2.085536)), False)
sketch5.addGeometry(Part.ArcOfCircle(Part.Circle(App.Vector(-180.0459, -94.9541, 0), App.Vector(0, 0, 1), 5.0459), math.radians(-90), math.radians(0)), False)
sketch5.addGeometry(Part.LineSegment(App.Vector(-180.0459, -100, 0), App.Vector(-175, -100, 0)), False)
sketch5.addGeometry(Part.LineSegment(App.Vector(-175, -100, 0), App.Vector(-175, -94.9541, 0)), False)
sketch5.addConstraint(Sketcher.Constraint("Tangent", 0, 2, 1, 2))
sketch5.addConstraint(Sketcher.Constraint("Tangent", 1, 1, 2, 2))
sketch5.addConstraint(Sketcher.Constraint("Coincident", 2, 1, 0, 1))
sketch5.addConstraint(Sketcher.Constraint("Tangent", 3, 1, 4, 1))
sketch5.addConstraint(Sketcher.Constraint("Coincident", 4, 2, 5, 1))
sketch5.addConstraint(Sketcher.Constraint("Tangent", 5, 2, 3, 2))
sketch5.addConstraint(Sketcher.Constraint("Horizontal", 0))
sketch5.addConstraint(Sketcher.Constraint("Horizontal", 4))
sketch5.addConstraint(Sketcher.Constraint("Vertical", 5))
sketch5.addConstraint(Sketcher.Constraint("Coincident", 3, 3, 1, 3))
sketch5.addConstraint(Sketcher.Constraint("Equal", 1, 3))
sketch5.addConstraint(Sketcher.Constraint("Horizontal", 2, 3, 0, 2))
sketch5.addConstraint(Sketcher.Constraint("DistanceY", 2, 3, -1, 1, Q("100 mm")))
sketch5.addConstraint(Sketcher.Constraint("DistanceX", 2, 1, -1, 1, Q("185 mm")))
sketch5.addConstraint(Sketcher.Constraint("DistanceX", 4, 2, -1, 1, Q("175 mm")))
sketch5.addConstraint(Sketcher.Constraint("Radius", 2, Q("133.611 mm")))
pocket3 = body.newObject("PartDesign::Pocket", "Pocket002")
pocket3.Profile = sketch5
pocket3.setExpression("Length", "Params.pocket3_length")

# Sketch on XY plane
sketch6 = body.newObject("Sketcher::SketchObject", "Sketch005")
sketch6.AttachmentSupport = (doc.getObject("XY_Plane"), [""])
sketch6.MapMode = "FlatFace"
sketch6.addGeometry(Part.LineSegment(App.Vector(310, -235, 0), App.Vector(280, -235, 0)), False)
sketch6.addGeometry(Part.LineSegment(App.Vector(280, -235, 0), App.Vector(280, -138.8842, 0)), False)
sketch6.addGeometry(Part.LineSegment(App.Vector(280, -138.8842, 0), App.Vector(310, -138.8842, 0)), False)
sketch6.addGeometry(Part.LineSegment(App.Vector(310, -138.8842, 0), App.Vector(310, -235, 0)), False)
sketch6.addGeometry(Part.LineSegment(App.Vector(-280, -235, 0), App.Vector(-310, -235, 0)), False)
sketch6.addGeometry(Part.LineSegment(App.Vector(-310, -235, 0), App.Vector(-310, -138.8842, 0)), False)
sketch6.addGeometry(Part.LineSegment(App.Vector(-310, -138.8842, 0), App.Vector(-280, -138.8842, 0)), False)
sketch6.addGeometry(Part.LineSegment(App.Vector(-280, -138.8842, 0), App.Vector(-280, -235, 0)), False)
sketch6.addConstraint(Sketcher.Constraint("Coincident", 0, 2, 1, 1))
sketch6.addConstraint(Sketcher.Constraint("Coincident", 1, 2, 2, 1))
sketch6.addConstraint(Sketcher.Constraint("Coincident", 2, 2, 3, 1))
sketch6.addConstraint(Sketcher.Constraint("Coincident", 3, 2, 0, 1))
sketch6.addConstraint(Sketcher.Constraint("Coincident", 4, 2, 5, 1))
sketch6.addConstraint(Sketcher.Constraint("Coincident", 5, 2, 6, 1))
sketch6.addConstraint(Sketcher.Constraint("Coincident", 6, 2, 7, 1))
sketch6.addConstraint(Sketcher.Constraint("Coincident", 7, 2, 4, 1))
sketch6.addConstraint(Sketcher.Constraint("Horizontal", 0))
sketch6.addConstraint(Sketcher.Constraint("Vertical", 1))
sketch6.addConstraint(Sketcher.Constraint("Horizontal", 2))
sketch6.addConstraint(Sketcher.Constraint("Vertical", 3))
sketch6.addConstraint(Sketcher.Constraint("Horizontal", 4))
sketch6.addConstraint(Sketcher.Constraint("Vertical", 5))
sketch6.addConstraint(Sketcher.Constraint("Horizontal", 6))
sketch6.addConstraint(Sketcher.Constraint("Vertical", 7))
sketch6.addConstraint(Sketcher.Constraint("Symmetric", 3, 2, 4, 2, -2))
sketch6.addConstraint(Sketcher.Constraint("Symmetric", 1, 2, 6, 2, -2))
sketch6.addConstraint(Sketcher.Constraint("DistanceX", 0, 2, 0, 1, Q("30 mm")))
sketch6.addConstraint(Sketcher.Constraint("DistanceX", -1, 1, 0, 2, Q("280 mm")))
sketch6.addConstraint(Sketcher.Constraint("DistanceY", 0, 2, -1, 1, Q("235 mm")))
sketch6.addConstraint(Sketcher.Constraint("DistanceY", 1, 1, 1, 2, Q("96.1158 mm")))
sketch6.setExpression("Constraints[18]", "Params.sketch6_width")
pocket4 = body.newObject("PartDesign::Pocket", "Pocket003")
pocket4.Profile = sketch6
pocket4.setExpression("Length", "Params.pocket4_length")
pocket4.Reversed = True

doc.recompute()
